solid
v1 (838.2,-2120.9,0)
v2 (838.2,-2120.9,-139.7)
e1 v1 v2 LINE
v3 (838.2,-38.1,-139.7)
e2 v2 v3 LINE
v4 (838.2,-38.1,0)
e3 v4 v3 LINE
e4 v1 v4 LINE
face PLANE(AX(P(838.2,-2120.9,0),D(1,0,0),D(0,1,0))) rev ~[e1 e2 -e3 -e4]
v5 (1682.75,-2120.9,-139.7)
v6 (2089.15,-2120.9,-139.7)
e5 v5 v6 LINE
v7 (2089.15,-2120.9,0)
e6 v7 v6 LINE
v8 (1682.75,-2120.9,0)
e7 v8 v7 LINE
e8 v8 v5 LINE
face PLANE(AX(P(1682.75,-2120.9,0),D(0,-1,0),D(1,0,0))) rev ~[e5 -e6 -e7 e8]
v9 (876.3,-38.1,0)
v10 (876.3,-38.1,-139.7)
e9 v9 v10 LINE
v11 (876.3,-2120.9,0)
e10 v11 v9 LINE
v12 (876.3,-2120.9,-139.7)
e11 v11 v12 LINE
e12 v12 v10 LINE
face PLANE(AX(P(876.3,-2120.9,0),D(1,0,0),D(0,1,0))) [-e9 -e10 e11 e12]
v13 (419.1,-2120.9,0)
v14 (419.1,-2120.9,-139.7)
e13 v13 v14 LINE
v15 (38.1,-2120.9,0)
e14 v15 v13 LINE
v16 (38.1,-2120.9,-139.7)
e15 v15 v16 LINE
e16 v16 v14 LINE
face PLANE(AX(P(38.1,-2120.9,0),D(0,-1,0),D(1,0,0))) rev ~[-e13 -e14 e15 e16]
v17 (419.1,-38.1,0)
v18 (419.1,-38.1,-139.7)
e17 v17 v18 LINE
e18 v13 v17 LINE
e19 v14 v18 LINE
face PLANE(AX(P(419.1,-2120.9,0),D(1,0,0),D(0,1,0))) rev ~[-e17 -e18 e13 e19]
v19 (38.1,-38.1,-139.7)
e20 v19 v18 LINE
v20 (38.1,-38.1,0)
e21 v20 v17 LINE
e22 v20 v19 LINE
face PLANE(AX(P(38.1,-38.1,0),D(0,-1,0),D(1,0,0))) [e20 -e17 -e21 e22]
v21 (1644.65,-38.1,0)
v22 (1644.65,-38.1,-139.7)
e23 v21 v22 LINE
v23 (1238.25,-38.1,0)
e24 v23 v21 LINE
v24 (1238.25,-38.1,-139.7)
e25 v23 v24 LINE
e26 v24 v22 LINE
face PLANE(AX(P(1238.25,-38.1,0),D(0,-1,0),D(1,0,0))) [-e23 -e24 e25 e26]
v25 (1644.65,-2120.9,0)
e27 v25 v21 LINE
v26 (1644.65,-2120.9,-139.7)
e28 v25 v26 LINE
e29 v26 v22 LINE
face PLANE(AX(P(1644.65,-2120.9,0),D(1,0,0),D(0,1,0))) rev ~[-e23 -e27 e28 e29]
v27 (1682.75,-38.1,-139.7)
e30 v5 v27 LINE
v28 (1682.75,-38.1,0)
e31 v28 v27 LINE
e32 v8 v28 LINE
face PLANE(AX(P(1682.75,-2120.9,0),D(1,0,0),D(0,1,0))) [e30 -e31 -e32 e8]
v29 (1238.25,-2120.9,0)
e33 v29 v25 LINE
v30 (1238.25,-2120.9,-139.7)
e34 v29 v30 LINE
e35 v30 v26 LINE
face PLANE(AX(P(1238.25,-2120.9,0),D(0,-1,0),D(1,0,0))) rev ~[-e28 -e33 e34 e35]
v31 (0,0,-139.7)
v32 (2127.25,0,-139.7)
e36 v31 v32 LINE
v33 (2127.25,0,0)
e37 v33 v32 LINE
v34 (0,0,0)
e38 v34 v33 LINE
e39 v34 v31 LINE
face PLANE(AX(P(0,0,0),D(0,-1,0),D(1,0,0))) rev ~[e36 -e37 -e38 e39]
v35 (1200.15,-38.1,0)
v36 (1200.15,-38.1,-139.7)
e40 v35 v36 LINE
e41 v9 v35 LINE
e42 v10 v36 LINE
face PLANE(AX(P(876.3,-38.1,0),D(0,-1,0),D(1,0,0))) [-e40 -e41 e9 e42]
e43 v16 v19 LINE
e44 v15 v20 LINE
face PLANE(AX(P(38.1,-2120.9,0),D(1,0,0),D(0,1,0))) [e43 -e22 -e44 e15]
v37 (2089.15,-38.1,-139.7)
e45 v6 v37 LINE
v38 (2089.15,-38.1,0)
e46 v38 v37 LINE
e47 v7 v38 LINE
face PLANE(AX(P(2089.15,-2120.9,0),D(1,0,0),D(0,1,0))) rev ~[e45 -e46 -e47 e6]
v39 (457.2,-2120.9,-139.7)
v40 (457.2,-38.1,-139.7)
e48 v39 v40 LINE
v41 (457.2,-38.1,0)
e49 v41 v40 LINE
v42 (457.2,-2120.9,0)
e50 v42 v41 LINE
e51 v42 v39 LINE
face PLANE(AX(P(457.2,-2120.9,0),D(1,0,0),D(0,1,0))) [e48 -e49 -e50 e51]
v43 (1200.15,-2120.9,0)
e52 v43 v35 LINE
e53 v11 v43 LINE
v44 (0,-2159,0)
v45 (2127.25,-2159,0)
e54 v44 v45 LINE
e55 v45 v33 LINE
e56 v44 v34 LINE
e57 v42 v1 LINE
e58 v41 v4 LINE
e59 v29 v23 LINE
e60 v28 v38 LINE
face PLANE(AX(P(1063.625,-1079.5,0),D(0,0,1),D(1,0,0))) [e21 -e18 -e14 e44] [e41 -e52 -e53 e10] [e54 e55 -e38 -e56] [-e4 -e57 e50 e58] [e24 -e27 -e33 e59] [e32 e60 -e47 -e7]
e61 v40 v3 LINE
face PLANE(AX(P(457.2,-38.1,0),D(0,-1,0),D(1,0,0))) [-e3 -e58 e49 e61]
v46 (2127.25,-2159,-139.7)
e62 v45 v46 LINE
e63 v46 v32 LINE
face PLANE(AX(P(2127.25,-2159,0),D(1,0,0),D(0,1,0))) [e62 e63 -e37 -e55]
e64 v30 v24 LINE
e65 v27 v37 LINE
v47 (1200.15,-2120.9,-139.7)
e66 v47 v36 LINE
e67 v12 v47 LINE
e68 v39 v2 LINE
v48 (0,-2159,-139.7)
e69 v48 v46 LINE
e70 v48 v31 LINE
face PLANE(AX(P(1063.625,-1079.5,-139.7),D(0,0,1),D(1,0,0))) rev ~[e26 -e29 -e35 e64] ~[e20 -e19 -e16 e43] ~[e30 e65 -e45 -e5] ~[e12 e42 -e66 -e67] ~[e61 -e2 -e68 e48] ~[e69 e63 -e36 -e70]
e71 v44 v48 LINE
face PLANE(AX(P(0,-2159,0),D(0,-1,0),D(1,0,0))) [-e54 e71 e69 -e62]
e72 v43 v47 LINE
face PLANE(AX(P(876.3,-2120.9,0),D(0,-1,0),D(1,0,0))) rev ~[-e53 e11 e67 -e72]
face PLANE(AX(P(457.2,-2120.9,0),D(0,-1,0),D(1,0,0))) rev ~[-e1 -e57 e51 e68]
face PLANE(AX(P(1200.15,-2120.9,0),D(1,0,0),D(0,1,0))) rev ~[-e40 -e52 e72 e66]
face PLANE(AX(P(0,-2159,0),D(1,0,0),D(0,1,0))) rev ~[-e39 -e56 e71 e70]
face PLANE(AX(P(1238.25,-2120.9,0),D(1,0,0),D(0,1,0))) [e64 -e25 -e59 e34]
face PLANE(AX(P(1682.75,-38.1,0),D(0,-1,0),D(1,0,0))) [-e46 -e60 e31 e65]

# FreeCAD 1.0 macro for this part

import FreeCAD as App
import Part
import Sketcher
Q = App.Units.Quantity

doc = App.newDocument("Part")
body = doc.addObject("PartDesign::Body", "Body")

sketch1 = body.newObject("Sketcher::SketchObject", "Sketch")
sketch1.AttachmentSupport = (doc.getObject("XY_Plane"), [""])
sketch1.MapMode = "FlatFace"
sketch1.addGeometry([
    Part.LineSegment(App.Vector(0, 0, 0), App.Vector(0, -2159, 0)),
    Part.LineSegment(App.Vector(0, -2159, 0), App.Vector(2127, -2159, 0)),
    Part.LineSegment(App.Vector(2127, -2159, 0), App.Vector(2127, 0, 0)),
    Part.LineSegment(App.Vector(2127, 0, 0), App.Vector(0, 0, 0)),
    Part.LineSegment(App.Vector(419, -2121, 0), App.Vector(38, -2121, 0)),
    Part.LineSegment(App.Vector(38, -2121, 0), App.Vector(38, -38, 0)),
    Part.LineSegment(App.Vector(38, -38, 0), App.Vector(419, -38, 0)),
    Part.LineSegment(App.Vector(419, -38, 0), App.Vector(419, -2121, 0)),
    Part.LineSegment(App.Vector(838, -2121, 0), App.Vector(457, -2121, 0)),
    Part.LineSegment(App.Vector(457, -2121, 0), App.Vector(457, -38, 0)),
    Part.LineSegment(App.Vector(457, -38, 0), App.Vector(838, -38, 0)),
    Part.LineSegment(App.Vector(838, -38, 0), App.Vector(838, -2121, 0)),
    Part.LineSegment(App.Vector(1200, -2121, 0), App.Vector(876, -2121, 0)),
    Part.LineSegment(App.Vector(876, -2121, 0), App.Vector(876, -38, 0)),
    Part.LineSegment(App.Vector(876, -38, 0), App.Vector(1200, -38, 0)),
    Part.LineSegment(App.Vector(1200, -38, 0), App.Vector(1200, -2121, 0)),
    Part.LineSegment(App.Vector(1645, -2121, 0), App.Vector(1238, -2121, 0)),
    Part.LineSegment(App.Vector(1238, -2121, 0), App.Vector(1238, -38, 0)),
    Part.LineSegment(App.Vector(1238, -38, 0), App.Vector(1645, -38, 0)),
    Part.LineSegment(App.Vector(1645, -38, 0), App.Vector(1645, -2121, 0)),
    Part.LineSegment(App.Vector(2089, -2121, 0), App.Vector(1683, -2121, 0)),
    Part.LineSegment(App.Vector(1683, -2121, 0), App.Vector(1683, -38, 0)),
    Part.LineSegment(App.Vector(1683, -38, 0), App.Vector(2089, -38, 0)),
    Part.LineSegment(App.Vector(2089, -38, 0), App.Vector(2089, -2121, 0)),
], False)
sketch1.addConstraint([
    Sketcher.Constraint("Coincident", 0, 2, 1, 1),
    Sketcher.Constraint("Coincident", 1, 2, 2, 1),
    Sketcher.Constraint("Coincident", 2, 2, 3, 1),
    Sketcher.Constraint("Coincident", 3, 2, 0, 1),
    Sketcher.Constraint("Coincident", 4, 2, 5, 1),
    Sketcher.Constraint("Coincident", 5, 2, 6, 1),
    Sketcher.Constraint("Coincident", 6, 2, 7, 1),
    Sketcher.Constraint("Coincident", 7, 2, 4, 1),
    Sketcher.Constraint("Coincident", 8, 2, 9, 1),
    Sketcher.Constraint("Coincident", 9, 2, 10, 1),
    Sketcher.Constraint("Coincident", 10, 2, 11, 1),
    Sketcher.Constraint("Coincident", 11, 2, 8, 1),
    Sketcher.Constraint("Coincident", 12, 2, 13, 1),
    Sketcher.Constraint("Coincident", 13, 2, 14, 1),
    Sketcher.Constraint("Coincident", 14, 2, 15, 1),
    Sketcher.Constraint("Coincident", 15, 2, 12, 1),
    Sketcher.Constraint("Coincident", 16, 2, 17, 1),
    Sketcher.Constraint("Coincident", 17, 2, 18, 1),
    Sketcher.Constraint("Coincident", 18, 2, 19, 1),
    Sketcher.Constraint("Coincident", 19, 2, 16, 1),
    Sketcher.Constraint("Coincident", 20, 2, 21, 1),
    Sketcher.Constraint("Coincident", 21, 2, 22, 1),
    Sketcher.Constraint("Coincident", 22, 2, 23, 1),
    Sketcher.Constraint("Coincident", 23, 2, 20, 1),
    Sketcher.Constraint("Vertical", 0),
    Sketcher.Constraint("Horizontal", 1),
    Sketcher.Constraint("Vertical", 2),
    Sketcher.Constraint("Horizontal", 3),
    Sketcher.Constraint("Horizontal", 4),
    Sketcher.Constraint("Vertical", 5),
    Sketcher.Constraint("Horizontal", 6),
    Sketcher.Constraint("Vertical", 7),
    Sketcher.Constraint("Horizontal", 8),
    Sketcher.Constraint("Vertical", 9),
    Sketcher.Constraint("Horizontal", 10),
    Sketcher.Constraint("Vertical", 11),
    Sketcher.Constraint("Horizontal", 12),
    Sketcher.Constraint("Vertical", 13),
    Sketcher.Constraint("Horizontal", 14),
    Sketcher.Constraint("Vertical", 15),
    Sketcher.Constraint("Horizontal", 16),
    Sketcher.Constraint("Vertical", 17),
    Sketcher.Constraint("Horizontal", 18),
    Sketcher.Constraint("Vertical", 19),
    Sketcher.Constraint("Horizontal", 20),
    Sketcher.Constraint("Vertical", 21),
    Sketcher.Constraint("Horizontal", 22),
    Sketcher.Constraint("Vertical", 23),
    Sketcher.Constraint("Coincident", 3, 2, -1, 1),
    Sketcher.Constraint("Horizontal", 7, 2, 8, 2),
    Sketcher.Constraint("Horizontal", 6, 2, 9, 2),
    Sketcher.Constraint("Horizontal", 11, 2, 12, 2),
    Sketcher.Constraint("Horizontal", 10, 2, 13, 2),
    Sketcher.Constraint("Horizontal", 15, 2, 16, 2),
    Sketcher.Constraint("Horizontal", 14, 2, 17, 2),
    Sketcher.Constraint("Horizontal", 19, 2, 20, 2),
    Sketcher.Constraint("Horizontal", 18, 2, 21, 2),
    Sketcher.Constraint("Equal", 6, 8),
    Sketcher.Constraint("Equal", 18, 20),
    Sketcher.Constraint("DistanceX", 4, 2, 4, 1, Q("15 in")),
    Sketcher.Constraint("DistanceX", 16, 2, 16, 1, Q("16 in")),
    Sketcher.Constraint("DistanceY", 0, 2, 0, 1, Q("85 in")),
    Sketcher.Constraint("DistanceY", 5, 1, 5, 2, Q("82 in")),
    Sketcher.Constraint("DistanceX", -1, 1, 8, 2, Q("18 in")),
    Sketcher.Constraint("DistanceX", 7, 2, 12, 2, Q("18 in")),
    Sketcher.Constraint("DistanceX", 18, 2, 2, 2, Q("19 in")),
    Sketcher.Constraint("DistanceX", 15, 2, 20, 2, Q("19 in")),
    Sketcher.Constraint("DistanceX", 1, 1, 1, 2, Q("83.75 in")),
    Sketcher.Constraint("DistanceX", 12, 2, 12, 1, Q("12.75 in")),
    Sketcher.Constraint("DistanceX", -1, 1, 4, 2, Q("1.5 in")),
    Sketcher.Constraint("DistanceY", 4, 2, -1, 1, Q("83.5 in")),
])
pad1 = body.newObject("PartDesign::Pad", "Pad")
pad1.Profile = sketch1
pad1.Length = Q("5.5 in")
pad1.Reversed = True

doc.recompute()
